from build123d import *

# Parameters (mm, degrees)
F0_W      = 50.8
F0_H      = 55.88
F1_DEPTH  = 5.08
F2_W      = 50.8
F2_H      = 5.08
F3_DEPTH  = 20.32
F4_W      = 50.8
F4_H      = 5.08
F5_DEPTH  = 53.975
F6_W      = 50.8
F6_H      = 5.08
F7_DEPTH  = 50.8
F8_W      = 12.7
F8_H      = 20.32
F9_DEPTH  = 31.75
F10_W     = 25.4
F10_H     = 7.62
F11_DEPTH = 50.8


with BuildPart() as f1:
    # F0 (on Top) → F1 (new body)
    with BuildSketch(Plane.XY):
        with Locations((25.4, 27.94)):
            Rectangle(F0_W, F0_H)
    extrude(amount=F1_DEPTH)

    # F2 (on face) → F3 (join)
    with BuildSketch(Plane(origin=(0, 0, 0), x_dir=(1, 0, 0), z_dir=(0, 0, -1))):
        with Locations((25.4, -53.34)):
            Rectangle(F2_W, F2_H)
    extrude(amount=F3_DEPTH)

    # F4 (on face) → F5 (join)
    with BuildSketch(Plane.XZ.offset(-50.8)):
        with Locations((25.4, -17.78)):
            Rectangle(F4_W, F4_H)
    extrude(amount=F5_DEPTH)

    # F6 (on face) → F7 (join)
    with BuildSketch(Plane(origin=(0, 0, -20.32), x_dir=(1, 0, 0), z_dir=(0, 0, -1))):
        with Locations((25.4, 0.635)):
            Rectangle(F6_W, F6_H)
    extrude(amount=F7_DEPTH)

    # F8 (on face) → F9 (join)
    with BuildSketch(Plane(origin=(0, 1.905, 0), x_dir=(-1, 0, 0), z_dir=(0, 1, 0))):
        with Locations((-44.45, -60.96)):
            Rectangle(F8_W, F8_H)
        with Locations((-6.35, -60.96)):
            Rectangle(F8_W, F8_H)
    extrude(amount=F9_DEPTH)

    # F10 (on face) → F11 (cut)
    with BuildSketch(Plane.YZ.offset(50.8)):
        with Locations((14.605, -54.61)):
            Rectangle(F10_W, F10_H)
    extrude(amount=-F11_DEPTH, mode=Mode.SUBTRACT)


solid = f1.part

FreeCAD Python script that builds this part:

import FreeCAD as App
import Part
import Sketcher
Q = App.Units.Quantity


def add_polygon(sketch, points):
    """Adds a closed chain of lines whose ends are joined by coincident constraints."""
    first, n = sketch.GeometryCount, len(points)
    for a, b in zip(points, points[1:] + points[:1]):
        sketch.addGeometry(Part.LineSegment(App.Vector(*a, 0), App.Vector(*b, 0)), False)
    for i in range(n):
        sketch.addConstraint(Sketcher.Constraint("Coincident", first + i, 2, first + (i + 1) % n, 1))

doc = App.newDocument("Part")
params = doc.addObject("Spreadsheet::Sheet", "Params")
for row, (alias, value) in enumerate([
    ("sketch1_width", "2 in"),
    ("sketch1_height", "2.2 in"),
    ("pad1_length", "0.2 in"),
    ("sketch2_width", "2 in"),
    ("sketch2_height", "0.2 in"),
    ("pad2_length", "0.8 in"),
    ("sketch3_width", "2 in"),
    ("sketch3_height", "0.2 in"),
    ("pad3_length", "2.125 in"),
    ("sketch4_width", "2 in"),
    ("sketch4_height", "0.2 in"),
    ("pad4_length", "2 in"),
    ("sketch5_width", "0.5 in"),
    ("sketch5_height", "0.8 in"),
    ("pad5_length", "1.25 in"),
    ("sketch6_width", "1 in"),
    ("sketch6_height", "0.3 in"),
    ("pocket1_length", "2 in"),
], start=1):
    params.set(f"A{row}", alias)
    params.set(f"B{row}", "=" + value)
    params.setAlias(f"B{row}", alias)

body = doc.addObject("PartDesign::Body", "Body")

# Sketch on XY plane
sketch1 = doc.addObject("Sketcher::SketchObject", "Sketch")
body.addObject(sketch1)
sketch1.AttachmentSupport = (doc.XY_Plane, [""])
sketch1.MapMode = "FlatFace"
add_polygon(sketch1, [(0, 56), (0, 0), (51, 0), (51, 56)])  # lines 0-3
sketch1.addConstraint([
    Sketcher.Constraint("Vertical", 0),
    Sketcher.Constraint("Horizontal", 1),
    Sketcher.Constraint("Vertical", 2),
    Sketcher.Constraint("Horizontal", 3),
    Sketcher.Constraint("Coincident", 0, 2, -1, 1),
    Sketcher.Constraint("DistanceX", 1, 1, 1, 2, Q("2 in")),
    Sketcher.Constraint("DistanceY", 0, 2, 0, 1, Q("2.2 in")),
])
sketch1.setExpression("Constraints[9]", "Params.sketch1_width")
sketch1.setExpression("Constraints[10]", "Params.sketch1_height")
pad1 = doc.addObject("PartDesign::Pad", "Pad")
body.addObject(pad1)
pad1.Profile = sketch1
pad1.setExpression("Length", "Params.pad1_length")

# Sketch on XY plane
sketch2 = doc.addObject("Sketcher::SketchObject", "Sketch001")
body.addObject(sketch2)
sketch2.AttachmentSupport = (doc.XY_Plane, [""])
sketch2.MapMode = "FlatFace"
add_polygon(sketch2, [(0, 51), (0, 56), (51, 56), (51, 51)])  # lines 0-3
sketch2.addConstraint([
    Sketcher.Constraint("Vertical", 0),
    Sketcher.Constraint("Horizontal", 1),
    Sketcher.Constraint("Vertical", 2),
    Sketcher.Constraint("Horizontal", 3),
    Sketcher.Constraint("PointOnObject", 0, 2, -2),
    Sketcher.Constraint("DistanceX", 1, 1, 1, 2, Q("2 in")),
    Sketcher.Constraint("DistanceY", 0, 1, 0, 2, Q("0.2 in")),
    Sketcher.Constraint("DistanceY", -1, 1, 2, 2, Q("2 in")),
])
sketch2.setExpression("Constraints[9]", "Params.sketch2_width")
sketch2.setExpression("Constraints[10]", "Params.sketch2_height")
pad2 = doc.addObject("PartDesign::Pad", "Pad001")
body.addObject(pad2)
pad2.Profile = sketch2
pad2.setExpression("Length", "Params.pad2_length")
pad2.Reversed = True

# Sketch on XZ plane
sketch3 = doc.addObject("Sketcher::SketchObject", "Sketch002")
body.addObject(sketch3)
sketch3.AttachmentSupport = (doc.XZ_Plane, [""])
sketch3.MapMode = "FlatFace"
sketch3.AttachmentOffset = App.Placement(App.Vector(0, 0, -2 * 25.4), App.Rotation())
add_polygon(sketch3, [(0, -15), (0, -20), (51, -20), (51, -15)])  # lines 0-3
sketch3.addConstraint([
    Sketcher.Constraint("Vertical", 0),
    Sketcher.Constraint("Horizontal", 1),
    Sketcher.Constraint("Vertical", 2),
    Sketcher.Constraint("Horizontal", 3),
    Sketcher.Constraint("PointOnObject", 0, 2, -2),
    Sketcher.Constraint("DistanceX", 1, 1, 1, 2, Q("2 in")),
    Sketcher.Constraint("DistanceY", 0, 2, 0, 1, Q("0.2 in")),
    Sketcher.Constraint("DistanceY", 0, 2, -1, 1, Q("0.8 in")),
])
sketch3.setExpression("Constraints[9]", "Params.sketch3_width")
sketch3.setExpression("Constraints[10]", "Params.sketch3_height")
pad3 = doc.addObject("PartDesign::Pad", "Pad002")
body.addObject(pad3)
pad3.Profile = sketch3
pad3.setExpression("Length", "Params.pad3_length")

# Sketch on XY plane
sketch4 = doc.addObject("Sketcher::SketchObject", "Sketch003")
body.addObject(sketch4)
sketch4.AttachmentSupport = (doc.XY_Plane, [""])
sketch4.MapMode = "FlatFace"
sketch4.AttachmentOffset = App.Placement(App.Vector(0, 0, -0.8 * 25.4), App.Rotation())
add_polygon(sketch4, [(0, -3), (0, 2), (51, 2), (51, -3)])  # lines 0-3
sketch4.addConstraint([
    Sketcher.Constraint("Vertical", 0),
    Sketcher.Constraint("Horizontal", 1),
    Sketcher.Constraint("Vertical", 2),
    Sketcher.Constraint("Horizontal", 3),
    Sketcher.Constraint("PointOnObject", 0, 2, -2),
    Sketcher.Constraint("DistanceX", 1, 1, 1, 2, Q("2 in")),
    Sketcher.Constraint("DistanceY", 0, 1, 0, 2, Q("0.2 in")),
    Sketcher.Constraint("DistanceY", -1, 1, 0, 2, Q("0.075 in")),
])
sketch4.setExpression("Constraints[9]", "Params.sketch4_width")
sketch4.setExpression("Constraints[10]", "Params.sketch4_height")
pad4 = doc.addObject("PartDesign::Pad", "Pad003")
body.addObject(pad4)
pad4.Profile = sketch4
pad4.setExpression("Length", "Params.pad4_length")
pad4.Reversed = True

# Sketch on XZ plane
sketch5 = doc.addObject("Sketcher::SketchObject", "Sketch004")
body.addObject(sketch5)
sketch5.AttachmentSupport = (doc.XZ_Plane, [""])
sketch5.MapMode = "FlatFace"
sketch5.AttachmentOffset = App.Placement(App.Vector(0, 0, -0.075 * 25.4), App.Rotation())
add_polygon(sketch5, [(51, -51), (51, -71), (38, -71), (38, -51)])  # lines 0-3
add_polygon(sketch5, [(13, -51), (13, -71), (0, -71), (0, -51)])  # lines 4-7
sketch5.addConstraint([
    Sketcher.Constraint("Vertical", 0),
    Sketcher.Constraint("Horizontal", 1),
    Sketcher.Constraint("Vertical", 2),
    Sketcher.Constraint("Horizontal", 3),
    Sketcher.Constraint("Vertical", 4),
    Sketcher.Constraint("Horizontal", 5),
    Sketcher.Constraint("Vertical", 6),
    Sketcher.Constraint("Horizontal", 7),
    Sketcher.Constraint("PointOnObject", 5, 2, -2),
    Sketcher.Constraint("Horizontal", 1, 2, 4, 2),
    Sketcher.Constraint("Horizontal", 3, 2, 6, 2),
    Sketcher.Constraint("Equal", 3, 5),
    Sketcher.Constraint("DistanceX", 1, 2, 1, 1, Q("0.5 in")),
    Sketcher.Constraint("DistanceY", 0, 2, 0, 1, Q("0.8 in")),
    Sketcher.Constraint("DistanceX", -1, 1, 0, 2, Q("2 in")),
    Sketcher.Constraint("DistanceY", 2, 2, -1, 1, Q("2 in")),
])
sketch5.setExpression("Constraints[20]", "Params.sketch5_width")
sketch5.setExpression("Constraints[21]", "Params.sketch5_height")
pad5 = doc.addObject("PartDesign::Pad", "Pad004")
body.addObject(pad5)
pad5.Profile = sketch5
pad5.setExpression("Length", "Params.pad5_length")
pad5.Reversed = True

# Sketch on YZ plane
sketch6 = doc.addObject("Sketcher::SketchObject", "Sketch005")
body.addObject(sketch6)
sketch6.AttachmentSupport = (doc.YZ_Plane, [""])
sketch6.MapMode = "FlatFace"
sketch6.AttachmentOffset = App.Placement(App.Vector(0, 0, 2 * 25.4), App.Rotation())
add_polygon(sketch6, [(2, -51), (2, -58), (27, -58), (27, -51)])  # lines 0-3
sketch6.addConstraint([
    Sketcher.Constraint("Vertical", 0),
    Sketcher.Constraint("Horizontal", 1),
    Sketcher.Constraint("Vertical", 2),
    Sketcher.Constraint("Horizontal", 3),
    Sketcher.Constraint("DistanceX", 1, 1, 1, 2, Q("1 in")),
    Sketcher.Constraint("DistanceY", 0, 2, 0, 1, Q("0.3 in")),
    Sketcher.Constraint("DistanceY", 2, 2, -1, 1, Q("2 in")),
    Sketcher.Constraint("DistanceX", -1, 1, 0, 2, Q("0.075 in")),
])
sketch6.setExpression("Constraints[8]", "Params.sketch6_width")
sketch6.setExpression("Constraints[9]", "Params.sketch6_height")
pocket1 = doc.addObject("PartDesign::Pocket", "Pocket")
body.addObject(pocket1)
pocket1.Profile = sketch6
pocket1.setExpression("Length", "Params.pocket1_length")

doc.recompute()
